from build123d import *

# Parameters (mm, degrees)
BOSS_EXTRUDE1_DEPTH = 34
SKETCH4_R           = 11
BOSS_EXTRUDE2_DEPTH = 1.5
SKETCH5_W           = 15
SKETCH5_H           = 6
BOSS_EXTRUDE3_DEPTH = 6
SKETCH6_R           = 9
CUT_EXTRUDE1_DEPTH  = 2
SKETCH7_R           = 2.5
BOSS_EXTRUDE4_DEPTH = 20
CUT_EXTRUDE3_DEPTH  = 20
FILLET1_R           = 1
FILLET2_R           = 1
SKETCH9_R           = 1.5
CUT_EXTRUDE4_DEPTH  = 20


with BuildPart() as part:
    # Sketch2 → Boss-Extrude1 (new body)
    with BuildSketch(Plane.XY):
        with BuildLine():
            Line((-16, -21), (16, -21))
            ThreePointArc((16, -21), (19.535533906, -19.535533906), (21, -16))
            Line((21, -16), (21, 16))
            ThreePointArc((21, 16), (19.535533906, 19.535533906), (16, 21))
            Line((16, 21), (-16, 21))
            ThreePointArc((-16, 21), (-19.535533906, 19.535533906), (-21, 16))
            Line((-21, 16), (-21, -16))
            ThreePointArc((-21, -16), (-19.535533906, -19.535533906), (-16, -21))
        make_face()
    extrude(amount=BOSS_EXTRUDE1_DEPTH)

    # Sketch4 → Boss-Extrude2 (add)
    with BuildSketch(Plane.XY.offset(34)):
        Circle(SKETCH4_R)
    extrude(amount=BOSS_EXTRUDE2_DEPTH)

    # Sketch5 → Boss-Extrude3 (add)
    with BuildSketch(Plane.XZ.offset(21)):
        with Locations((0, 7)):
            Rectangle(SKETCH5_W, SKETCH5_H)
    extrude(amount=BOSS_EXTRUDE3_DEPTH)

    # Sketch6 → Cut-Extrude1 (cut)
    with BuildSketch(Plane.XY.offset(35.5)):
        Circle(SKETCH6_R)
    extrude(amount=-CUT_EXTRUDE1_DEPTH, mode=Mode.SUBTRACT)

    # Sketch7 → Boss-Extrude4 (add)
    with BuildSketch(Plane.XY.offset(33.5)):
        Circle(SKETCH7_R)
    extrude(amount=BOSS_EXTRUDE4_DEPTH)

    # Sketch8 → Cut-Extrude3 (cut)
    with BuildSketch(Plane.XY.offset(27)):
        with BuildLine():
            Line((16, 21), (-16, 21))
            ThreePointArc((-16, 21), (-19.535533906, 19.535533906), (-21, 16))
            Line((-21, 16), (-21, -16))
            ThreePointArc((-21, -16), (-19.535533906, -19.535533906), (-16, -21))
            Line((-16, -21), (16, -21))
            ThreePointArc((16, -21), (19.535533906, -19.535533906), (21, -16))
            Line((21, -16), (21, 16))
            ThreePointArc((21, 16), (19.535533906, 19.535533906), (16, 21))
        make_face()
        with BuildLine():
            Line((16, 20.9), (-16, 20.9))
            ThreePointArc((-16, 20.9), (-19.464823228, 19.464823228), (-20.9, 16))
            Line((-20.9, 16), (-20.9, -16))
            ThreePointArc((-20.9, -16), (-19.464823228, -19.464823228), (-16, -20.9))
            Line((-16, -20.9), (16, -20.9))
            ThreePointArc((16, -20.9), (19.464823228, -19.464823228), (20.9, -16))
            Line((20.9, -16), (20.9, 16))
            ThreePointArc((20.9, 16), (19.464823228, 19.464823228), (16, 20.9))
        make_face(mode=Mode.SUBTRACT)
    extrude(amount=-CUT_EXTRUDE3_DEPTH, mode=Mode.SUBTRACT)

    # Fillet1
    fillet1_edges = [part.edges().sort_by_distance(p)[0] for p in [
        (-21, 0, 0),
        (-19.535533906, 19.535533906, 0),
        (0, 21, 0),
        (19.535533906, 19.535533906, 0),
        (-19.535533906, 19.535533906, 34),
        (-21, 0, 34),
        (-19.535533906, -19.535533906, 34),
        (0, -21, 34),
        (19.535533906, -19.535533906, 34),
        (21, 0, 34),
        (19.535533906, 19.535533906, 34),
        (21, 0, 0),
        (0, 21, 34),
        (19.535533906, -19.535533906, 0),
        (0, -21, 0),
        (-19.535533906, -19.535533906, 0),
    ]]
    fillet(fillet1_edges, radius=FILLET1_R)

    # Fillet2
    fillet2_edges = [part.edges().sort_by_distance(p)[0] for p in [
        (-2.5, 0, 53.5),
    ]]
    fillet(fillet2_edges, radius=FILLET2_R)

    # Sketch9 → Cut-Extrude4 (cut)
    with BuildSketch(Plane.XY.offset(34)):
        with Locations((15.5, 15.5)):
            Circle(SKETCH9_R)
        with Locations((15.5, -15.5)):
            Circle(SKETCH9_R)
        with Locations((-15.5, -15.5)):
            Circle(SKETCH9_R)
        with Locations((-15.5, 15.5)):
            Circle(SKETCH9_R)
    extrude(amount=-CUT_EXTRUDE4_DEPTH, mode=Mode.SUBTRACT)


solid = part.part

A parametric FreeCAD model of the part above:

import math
import FreeCAD as App
import Part
import Sketcher

V = App.Vector


def edges_at(feature, points):
    """Names of the edges that pass closest to the given points."""
    edges = feature.Shape.Edges
    near = lambda p: min(range(len(edges)), key=lambda i: edges[i].distToShape(Part.Vertex(*p))[0])
    return sorted({f"Edge{near(p) + 1}" for p in points})

doc = App.newDocument("Part")
body = doc.addObject("PartDesign::Body", "Body")

# Sketch on XY plane
sketch1 = body.newObject("Sketcher::SketchObject", "Sketch")
sketch1.AttachmentSupport = (doc.getObject("XY_Plane"), [""])
sketch1.MapMode = "FlatFace"
sketch1.addGeometry([
    Part.LineSegment(V(-16, -21, 0), V(16, -21, 0)),  # 0
    Part.ArcOfCircle(Part.Circle(V(16, -16, 0), V(0, 0, 1), 5), math.radians(-90), math.radians(0)),  # 1
    Part.LineSegment(V(21, -16, 0), V(21, 16, 0)),  # 2
    Part.ArcOfCircle(Part.Circle(V(16, 16, 0), V(0, 0, 1), 5), math.radians(0), math.radians(90)),  # 3
    Part.LineSegment(V(16, 21, 0), V(-16, 21, 0)),  # 4
    Part.ArcOfCircle(Part.Circle(V(-16, 16, 0), V(0, 0, 1), 5), math.radians(90), math.radians(180)),  # 5
    Part.LineSegment(V(-21, 16, 0), V(-21, -16, 0)),  # 6
    Part.ArcOfCircle(Part.Circle(V(-16, -16, 0), V(0, 0, 1), 5), math.radians(180), math.radians(270)),  # 7
], False)
sketch1.addConstraint([
    Sketcher.Constraint("Tangent", 0, 2, 1, 1),
    Sketcher.Constraint("Tangent", 1, 2, 2, 1),
    Sketcher.Constraint("Tangent", 2, 2, 3, 1),
    Sketcher.Constraint("Tangent", 3, 2, 4, 1),
    Sketcher.Constraint("Tangent", 4, 2, 5, 1),
    Sketcher.Constraint("Tangent", 5, 2, 6, 1),
    Sketcher.Constraint("Tangent", 6, 2, 7, 1),
    Sketcher.Constraint("Tangent", 7, 2, 0, 1),
    Sketcher.Constraint("Horizontal", 0),
    Sketcher.Constraint("Vertical", 2),
    Sketcher.Constraint("Horizontal", 4),
    Sketcher.Constraint("Vertical", 6),
    Sketcher.Constraint("Equal", 1, 3),
    Sketcher.Constraint("Equal", 3, 5),
    Sketcher.Constraint("Equal", 5, 7),
    Sketcher.Constraint("Symmetric", 1, 3, 5, 3, -1, 1),
    Sketcher.Constraint("Equal", 4, 2),
    Sketcher.Constraint("Radius", 1, 5.0),
    Sketcher.Constraint("DistanceX", 0, 1, 0, 2, 32.0),
])
pad1 = body.newObject("PartDesign::Pad", "Pad")
pad1.Profile = sketch1
pad1.Length = 34

# Sketch on XY plane
sketch2 = body.newObject("Sketcher::SketchObject", "Sketch001")
sketch2.AttachmentSupport = (doc.getObject("XY_Plane"), [""])
sketch2.MapMode = "FlatFace"
sketch2.AttachmentOffset = App.Placement(V(0, 0, 34), App.Rotation())
sketch2.addGeometry(Part.Circle(V(0, 0, 0), V(0, 0, 1), 11), False)
sketch2.addConstraint([
    Sketcher.Constraint("Coincident", 0, 3, -1, 1),
    Sketcher.Constraint("Diameter", 0, 22.0),
])
pad2 = body.newObject("PartDesign::Pad", "Pad001")
pad2.Profile = sketch2
pad2.Length = 1.5

# Sketch on XZ plane
sketch3 = body.newObject("Sketcher::SketchObject", "Sketch002")
sketch3.AttachmentSupport = (doc.getObject("XZ_Plane"), [""])
sketch3.MapMode = "FlatFace"
sketch3.AttachmentOffset = App.Placement(V(0, 0, 21), App.Rotation())
sketch3.addGeometry([
    Part.LineSegment(V(-7.5, 10, 0), V(-7.5, 4, 0)),
    Part.LineSegment(V(-7.5, 4, 0), V(7.5, 4, 0)),
    Part.LineSegment(V(7.5, 4, 0), V(7.5, 10, 0)),
    Part.LineSegment(V(7.5, 10, 0), V(-7.5, 10, 0)),
], False)
sketch3.addConstraint([
    Sketcher.Constraint("Coincident", 0, 2, 1, 1),
    Sketcher.Constraint("Coincident", 1, 2, 2, 1),
    Sketcher.Constraint("Coincident", 2, 2, 3, 1),
    Sketcher.Constraint("Coincident", 3, 2, 0, 1),
    Sketcher.Constraint("Vertical", 0),
    Sketcher.Constraint("Horizontal", 1),
    Sketcher.Constraint("Vertical", 2),
    Sketcher.Constraint("Horizontal", 3),
    Sketcher.Constraint("DistanceX", 1, 1, 1, 2, 15.0),
    Sketcher.Constraint("DistanceY", 0, 2, 0, 1, 6.0),
    Sketcher.Constraint("DistanceY", -1, 1, 0, 2, 4.0),
    Sketcher.Constraint("DistanceX", 0, 2, -1, 1, 7.5),
])
pad3 = body.newObject("PartDesign::Pad", "Pad002")
pad3.Profile = sketch3
pad3.Length = 6

# Sketch on XY plane
sketch4 = body.newObject("Sketcher::SketchObject", "Sketch003")
sketch4.AttachmentSupport = (doc.getObject("XY_Plane"), [""])
sketch4.MapMode = "FlatFace"
sketch4.AttachmentOffset = App.Placement(V(0, 0, 35.5), App.Rotation())
sketch4.addGeometry(Part.Circle(V(0, 0, 0), V(0, 0, 1), 9), False)
sketch4.addConstraint([
    Sketcher.Constraint("Coincident", 0, 3, -1, 1),
    Sketcher.Constraint("Diameter", 0, 18.0),
])
pocket1 = body.newObject("PartDesign::Pocket", "Pocket")
pocket1.Profile = sketch4
pocket1.Length = 2

# Sketch on XY plane
sketch5 = body.newObject("Sketcher::SketchObject", "Sketch004")
sketch5.AttachmentSupport = (doc.getObject("XY_Plane"), [""])
sketch5.MapMode = "FlatFace"
sketch5.AttachmentOffset = App.Placement(V(0, 0, 33.5), App.Rotation())
sketch5.addGeometry(Part.Circle(V(0, 0, 0), V(0, 0, 1), 2.5), False)
sketch5.addConstraint([
    Sketcher.Constraint("Coincident", 0, 3, -1, 1),
    Sketcher.Constraint("Diameter", 0, 5.0),
])
pad4 = body.newObject("PartDesign::Pad", "Pad003")
pad4.Profile = sketch5
pad4.Length = 20

# Sketch on XY plane
sketch6 = body.newObject("Sketcher::SketchObject", "Sketch005")
sketch6.AttachmentSupport = (doc.getObject("XY_Plane"), [""])
sketch6.MapMode = "FlatFace"
sketch6.AttachmentOffset = App.Placement(V(0, 0, 27), App.Rotation())
sketch6.addGeometry([
    Part.LineSegment(V(16, 21, 0), V(-16, 21, 0)),  # 0
    Part.ArcOfCircle(Part.Circle(V(-16, 16, 0), V(0, 0, 1), 5), math.radians(90), math.radians(180)),  # 1
    Part.LineSegment(V(-21, 16, 0), V(-21, -16, 0)),  # 2
    Part.ArcOfCircle(Part.Circle(V(-16, -16, 0), V(0, 0, 1), 5), math.radians(180), math.radians(270)),  # 3
    Part.LineSegment(V(-16, -21, 0), V(16, -21, 0)),  # 4
    Part.ArcOfCircle(Part.Circle(V(16, -16, 0), V(0, 0, 1), 5), math.radians(-90), math.radians(0)),  # 5
    Part.LineSegment(V(21, -16, 0), V(21, 16, 0)),  # 6
    Part.ArcOfCircle(Part.Circle(V(16, 16, 0), V(0, 0, 1), 5), math.radians(0), math.radians(90)),  # 7
    Part.LineSegment(V(-16, 20.9, 0), V(16, 20.9, 0)),  # 8
    Part.ArcOfCircle(Part.Circle(V(16, 16, 0), V(0, 0, 1), 4.9), math.radians(0), math.radians(90)),  # 9
    Part.LineSegment(V(20.9, 16, 0), V(20.9, -16, 0)),  # 10
    Part.ArcOfCircle(Part.Circle(V(16, -16, 0), V(0, 0, 1), 4.9), math.radians(-90), math.radians(0)),  # 11
    Part.LineSegment(V(16, -20.9, 0), V(-16, -20.9, 0)),  # 12
    Part.ArcOfCircle(Part.Circle(V(-16, -16, 0), V(0, 0, 1), 4.9), math.radians(180), math.radians(270)),  # 13
    Part.LineSegment(V(-20.9, -16, 0), V(-20.9, 16, 0)),  # 14
    Part.ArcOfCircle(Part.Circle(V(-16, 16, 0), V(0, 0, 1), 4.9), math.radians(90), math.radians(180)),  # 15
], False)
sketch6.addConstraint([
    Sketcher.Constraint("Tangent", 0, 2, 1, 1),
    Sketcher.Constraint("Tangent", 1, 2, 2, 1),
    Sketcher.Constraint("Tangent", 2, 2, 3, 1),
    Sketcher.Constraint("Tangent", 3, 2, 4, 1),
    Sketcher.Constraint("Tangent", 4, 2, 5, 1),
    Sketcher.Constraint("Tangent", 5, 2, 6, 1),
    Sketcher.Constraint("Tangent", 6, 2, 7, 1),
    Sketcher.Constraint("Tangent", 7, 2, 0, 1),
    Sketcher.Constraint("Tangent", 8, 2, 9, 2),
    Sketcher.Constraint("Tangent", 9, 1, 10, 1),
    Sketcher.Constraint("Tangent", 10, 2, 11, 2),
    Sketcher.Constraint("Tangent", 11, 1, 12, 1),
    Sketcher.Constraint("Tangent", 12, 2, 13, 2),
    Sketcher.Constraint("Tangent", 13, 1, 14, 1),
    Sketcher.Constraint("Tangent", 14, 2, 15, 2),
    Sketcher.Constraint("Tangent", 15, 1, 8, 1),
    Sketcher.Constraint("Horizontal", 0),
    Sketcher.Constraint("Vertical", 2),
    Sketcher.Constraint("Horizontal", 4),
    Sketcher.Constraint("Vertical", 6),
    Sketcher.Constraint("Horizontal", 8),
    Sketcher.Constraint("Vertical", 10),
    Sketcher.Constraint("Horizontal", 12),
    Sketcher.Constraint("Vertical", 14),
    Sketcher.Constraint("Coincident", 9, 3, 7, 3),
    Sketcher.Constraint("Coincident", 11, 3, 5, 3),
    Sketcher.Constraint("Coincident", 13, 3, 3, 3),
    Sketcher.Constraint("Equal", 1, 3),
    Sketcher.Constraint("Equal", 3, 5),
    Sketcher.Constraint("Equal", 5, 7),
    Sketcher.Constraint("Equal", 13, 15),
    Sketcher.Constraint("Symmetric", 1, 3, 5, 3, -1, 1),
    Sketcher.Constraint("Equal", 12, 2),
    Sketcher.Constraint("Radius", 1, 5.0),
    Sketcher.Constraint("Radius", 9, 4.9),
    Sketcher.Constraint("DistanceX", 0, 2, 0, 1, 32.0),
])
pocket2 = body.newObject("PartDesign::Pocket", "Pocket001")
pocket2.Profile = sketch6
pocket2.Length = 20
doc.recompute()

fillet = body.newObject("PartDesign::Fillet", "Fillet")
fillet.Base = (pocket2, edges_at(pocket2, [
    (-21, 0, 0),
    (-19.536, 19.536, 0),
    (0, 21, 0),
    (19.536, 19.536, 0),
    (-19.536, 19.536, 34),
    (-21, 0, 34),
    (-19.536, -19.536, 34),
    (0, -21, 34),
    (19.536, -19.536, 34),
    (21, 0, 34),
    (19.536, 19.536, 34),
    (21, 0, 0),
    (0, 21, 34),
    (19.536, -19.536, 0),
    (0, -21, 0),
    (-19.536, -19.536, 0),
]))
fillet.Radius = 1
doc.recompute()

fillet2 = body.newObject("PartDesign::Fillet", "Fillet001")
fillet2.Base = (fillet, edges_at(fillet, [(-2.5, 0, 53.5)]))
fillet2.Radius = 1

# Sketch on XY plane
sketch7 = body.newObject("Sketcher::SketchObject", "Sketch006")
sketch7.AttachmentSupport = (doc.getObject("XY_Plane"), [""])
sketch7.MapMode = "FlatFace"
sketch7.AttachmentOffset = App.Placement(V(0, 0, 34), App.Rotation())
sketch7.addGeometry([
    Part.Circle(V(15.5, 15.5, 0), V(0, 0, 1), 1.5),
    Part.Circle(V(15.5, -15.5, 0), V(0, 0, 1), 1.5),
    Part.Circle(V(-15.5, -15.5, 0), V(0, 0, 1), 1.5),
    Part.Circle(V(-15.5, 15.5, 0), V(0, 0, 1), 1.5),
], False)
sketch7.addConstraint([
    Sketcher.Constraint("Equal", 0, 1),
    Sketcher.Constraint("Equal", 1, 2),
    Sketcher.Constraint("Equal", 2, 3),
    Sketcher.Constraint("Symmetric", 0, 3, 2, 3, -1, 1),
    Sketcher.Constraint("Symmetric", 1, 3, 3, 3, -1, 1),
    Sketcher.Constraint("Symmetric", 1, 3, 2, 3, -2),
    Sketcher.Constraint("Diameter", 0, 3.0),
    Sketcher.Constraint("DistanceY", 1, 3, 0, 3, 31.0),
    Sketcher.Constraint("DistanceX", 2, 3, 1, 3, 31.0),
])
pocket3 = body.newObject("PartDesign::Pocket", "Pocket002")
pocket3.Profile = sketch7
pocket3.Length = 20

doc.recompute()
